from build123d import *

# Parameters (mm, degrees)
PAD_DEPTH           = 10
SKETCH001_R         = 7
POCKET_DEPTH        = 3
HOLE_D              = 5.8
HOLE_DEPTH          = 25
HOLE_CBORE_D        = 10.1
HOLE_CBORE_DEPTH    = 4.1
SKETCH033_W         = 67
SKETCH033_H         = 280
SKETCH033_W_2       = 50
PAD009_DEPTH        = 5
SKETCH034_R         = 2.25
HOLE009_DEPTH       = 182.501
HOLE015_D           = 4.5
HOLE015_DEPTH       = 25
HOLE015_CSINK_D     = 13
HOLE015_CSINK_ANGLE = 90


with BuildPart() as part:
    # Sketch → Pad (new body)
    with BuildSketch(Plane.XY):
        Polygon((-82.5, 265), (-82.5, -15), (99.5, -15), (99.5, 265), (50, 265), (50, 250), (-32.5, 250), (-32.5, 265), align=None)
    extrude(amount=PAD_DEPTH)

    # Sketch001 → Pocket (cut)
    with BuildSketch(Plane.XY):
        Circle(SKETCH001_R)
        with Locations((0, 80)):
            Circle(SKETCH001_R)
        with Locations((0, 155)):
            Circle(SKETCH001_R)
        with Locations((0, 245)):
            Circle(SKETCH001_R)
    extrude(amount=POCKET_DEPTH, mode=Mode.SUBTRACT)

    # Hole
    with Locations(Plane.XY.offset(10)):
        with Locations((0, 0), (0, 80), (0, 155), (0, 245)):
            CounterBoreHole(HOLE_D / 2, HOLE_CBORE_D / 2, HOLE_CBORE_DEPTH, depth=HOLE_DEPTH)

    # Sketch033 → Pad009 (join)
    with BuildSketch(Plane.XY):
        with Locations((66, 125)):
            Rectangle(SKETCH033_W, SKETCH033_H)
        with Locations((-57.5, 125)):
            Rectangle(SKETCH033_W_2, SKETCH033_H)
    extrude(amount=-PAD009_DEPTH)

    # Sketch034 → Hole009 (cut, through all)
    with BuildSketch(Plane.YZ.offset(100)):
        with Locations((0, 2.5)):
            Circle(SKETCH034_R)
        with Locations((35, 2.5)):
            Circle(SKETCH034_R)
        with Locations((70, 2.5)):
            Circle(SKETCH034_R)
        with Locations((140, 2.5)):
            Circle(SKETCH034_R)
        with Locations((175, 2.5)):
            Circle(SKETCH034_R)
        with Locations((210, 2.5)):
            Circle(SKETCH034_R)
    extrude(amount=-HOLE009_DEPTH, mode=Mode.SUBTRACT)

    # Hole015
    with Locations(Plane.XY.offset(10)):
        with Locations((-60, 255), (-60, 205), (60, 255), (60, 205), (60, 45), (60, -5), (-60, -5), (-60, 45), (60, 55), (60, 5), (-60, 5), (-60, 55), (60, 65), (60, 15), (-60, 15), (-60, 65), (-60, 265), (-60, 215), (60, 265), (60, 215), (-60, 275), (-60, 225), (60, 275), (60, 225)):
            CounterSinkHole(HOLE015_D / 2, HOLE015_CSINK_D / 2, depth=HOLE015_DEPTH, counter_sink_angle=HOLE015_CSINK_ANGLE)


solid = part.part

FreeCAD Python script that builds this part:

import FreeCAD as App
import Part
import Sketcher

V = App.Vector
Q = App.Units.Quantity


def add_polygon(sketch, points):
    """Adds a closed chain of lines whose ends are joined by coincident constraints."""
    first, n = sketch.GeometryCount, len(points)
    for a, b in zip(points, points[1:] + points[:1]):
        sketch.addGeometry(Part.LineSegment(App.Vector(*a, 0), App.Vector(*b, 0)), False)
    for i in range(n):
        sketch.addConstraint(Sketcher.Constraint("Coincident", first + i, 2, first + (i + 1) % n, 1))

doc = App.newDocument("Part")
body = doc.addObject("PartDesign::Body", "Body")

# Sketch on XY plane
sketch1 = body.newObject("Sketcher::SketchObject", "Sketch")
sketch1.AttachmentSupport = (doc.getObject("XY_Plane"), [""])
sketch1.MapMode = "FlatFace"
add_polygon(sketch1, [(-82.5, 265), (-82.5, -15), (99.5, -15), (99.5, 265), (50, 265), (50, 250), (-32.5, 250), (-32.5, 265)])  # lines 0-7
sketch1.addConstraint([
    Sketcher.Constraint("Vertical", 0),
    Sketcher.Constraint("Horizontal", 1),
    Sketcher.Constraint("Vertical", 2),
    Sketcher.Constraint("Horizontal", 3),
    Sketcher.Constraint("Vertical", 4),
    Sketcher.Constraint("Horizontal", 5),
    Sketcher.Constraint("Vertical", 6),
    Sketcher.Constraint("Horizontal", 7),
    Sketcher.Constraint("Horizontal", 3, 2, 6, 2),
    Sketcher.Constraint("DistanceX", 1, 1, 1, 2, Q("182 mm")),
    Sketcher.Constraint("DistanceX", 7, 2, 7, 1, Q("50 mm")),
    Sketcher.Constraint("DistanceY", 0, 2, 0, 1, Q("280 mm")),
    Sketcher.Constraint("DistanceY", 4, 2, 4, 1, Q("15 mm")),
    Sketcher.Constraint("DistanceX", 3, 2, 3, 1, Q("49.5 mm")),
    Sketcher.Constraint("DistanceY", 0, 2, -1, 1, Q("15 mm")),
    Sketcher.Constraint("DistanceX", -1, 1, 3, 2, Q("50 mm")),
])
pad1 = body.newObject("PartDesign::Pad", "Pad")
pad1.Profile = sketch1
pad1.Length = 10

# Sketch on XY plane
sketch2 = body.newObject("Sketcher::SketchObject", "Sketch001")
sketch2.AttachmentSupport = (doc.getObject("XY_Plane"), [""])
sketch2.MapMode = "FlatFace"
sketch2.addGeometry([
    Part.Circle(V(0, 0, 0), V(0, 0, 1), 7),
    Part.Circle(V(0, 80, 0), V(0, 0, 1), 7),
    Part.Circle(V(0, 155, 0), V(0, 0, 1), 7),
    Part.Circle(V(0, 245, 0), V(0, 0, 1), 7),
], False)
sketch2.addConstraint([
    Sketcher.Constraint("Coincident", 0, 3, -1, 1),
    Sketcher.Constraint("Equal", 0, 1),
    Sketcher.Constraint("Equal", 1, 2),
    Sketcher.Constraint("Equal", 2, 3),
    Sketcher.Constraint("PointOnObject", 1, 3, -2),
    Sketcher.Constraint("PointOnObject", 2, 3, -2),
    Sketcher.Constraint("PointOnObject", 3, 3, -2),
    Sketcher.Constraint("Diameter", 0, Q("14 mm")),
    Sketcher.Constraint("DistanceY", -1, 1, 1, 3, Q("80 mm")),
    Sketcher.Constraint("DistanceY", -1, 1, 2, 3, Q("155 mm")),
    Sketcher.Constraint("DistanceY", -1, 1, 3, 3, Q("245 mm")),
])
pocket1 = body.newObject("PartDesign::Pocket", "Pocket")
pocket1.Profile = sketch2
pocket1.Length = 3
pocket1.Reversed = True

# Sketch on XY plane
sketch3 = body.newObject("Sketcher::SketchObject", "Sketch002")
sketch3.AttachmentSupport = (doc.getObject("XY_Plane"), [""])
sketch3.MapMode = "FlatFace"
sketch3.AttachmentOffset = App.Placement(V(0, 0, 10), App.Rotation())
sketch3.addGeometry([
    Part.Circle(V(0, 0, 0), V(0, 0, 1), 2.9),
    Part.Circle(V(0, 80, 0), V(0, 0, 1), 2.9),
    Part.Circle(V(0, 155, 0), V(0, 0, 1), 2.9),
    Part.Circle(V(0, 245, 0), V(0, 0, 1), 2.9),
], False)
sketch3.addConstraint([
    Sketcher.Constraint("Coincident", 0, 3, -1, 1),
    Sketcher.Constraint("Equal", 0, 1),
    Sketcher.Constraint("Equal", 1, 2),
    Sketcher.Constraint("Equal", 2, 3),
    Sketcher.Constraint("PointOnObject", 1, 3, -2),
    Sketcher.Constraint("PointOnObject", 2, 3, -2),
    Sketcher.Constraint("PointOnObject", 3, 3, -2),
    Sketcher.Constraint("Diameter", 0, Q("5.8 mm")),
    Sketcher.Constraint("DistanceY", -1, 1, 1, 3, Q("80 mm")),
    Sketcher.Constraint("DistanceY", -1, 1, 2, 3, Q("155 mm")),
    Sketcher.Constraint("DistanceY", -1, 1, 3, 3, Q("245 mm")),
])
doc.recompute()
hole = body.newObject("PartDesign::Hole", "Hole")
hole.Profile = sketch3
hole.ThreadType = "None"
hole.Diameter = 5.8
hole.DepthType = "Dimension"
hole.Depth = 25
hole.DrillPoint = "Flat"
hole.HoleCutType = "Counterbore"
hole.HoleCutDiameter = 10.1
hole.HoleCutDepth = 4.1

# Sketch on XY plane
sketch4 = body.newObject("Sketcher::SketchObject", "Sketch003")
sketch4.AttachmentSupport = (doc.getObject("XY_Plane"), [""])
sketch4.MapMode = "FlatFace"
add_polygon(sketch4, [(32.5, 265), (32.5, -15), (99.5, -15), (99.5, 265)])  # lines 0-3
add_polygon(sketch4, [(-82.5, 265), (-82.5, -15), (-32.5, -15), (-32.5, 265)])  # lines 4-7
sketch4.addConstraint([
    Sketcher.Constraint("Vertical", 0),
    Sketcher.Constraint("Horizontal", 1),
    Sketcher.Constraint("Vertical", 2),
    Sketcher.Constraint("Horizontal", 3),
    Sketcher.Constraint("Vertical", 4),
    Sketcher.Constraint("Horizontal", 5),
    Sketcher.Constraint("Vertical", 6),
    Sketcher.Constraint("Horizontal", 7),
    Sketcher.Constraint("Symmetric", 0, 2, 5, 2, -2),
    Sketcher.Constraint("Horizontal", 3, 2, 6, 2),
    Sketcher.Constraint("DistanceX", 1, 1, 1, 2, Q("67 mm")),
    Sketcher.Constraint("DistanceX", 5, 1, 5, 2, Q("50 mm")),
    Sketcher.Constraint("DistanceY", 0, 2, 0, 1, Q("280 mm")),
    Sketcher.Constraint("DistanceY", 0, 2, -1, 1, Q("15 mm")),
    Sketcher.Constraint("DistanceX", 4, 2, 0, 2, Q("115 mm")),
])
pad2 = body.newObject("PartDesign::Pad", "Pad001")
pad2.Profile = sketch4
pad2.Length = 5
pad2.Reversed = True

# Sketch on YZ plane
sketch5 = body.newObject("Sketcher::SketchObject", "Sketch004")
sketch5.AttachmentSupport = (doc.getObject("YZ_Plane"), [""])
sketch5.MapMode = "FlatFace"
sketch5.AttachmentOffset = App.Placement(V(0, 0, 100), App.Rotation())
sketch5.addGeometry([
    Part.Circle(V(0, 2.5, 0), V(0, 0, 1), 2.25),  # 0
    Part.Circle(V(35, 2.5, 0), V(0, 0, 1), 2.25),  # 1
    Part.Circle(V(70, 2.5, 0), V(0, 0, 1), 2.25),  # 2
    Part.Circle(V(140, 2.5, 0), V(0, 0, 1), 2.25),  # 3
    Part.Circle(V(175, 2.5, 0), V(0, 0, 1), 2.25),  # 4
    Part.Circle(V(210, 2.5, 0), V(0, 0, 1), 2.25),  # 5
], False)
sketch5.addConstraint([
    Sketcher.Constraint("Equal", 0, 1),
    Sketcher.Constraint("Equal", 1, 2),
    Sketcher.Constraint("Equal", 2, 3),
    Sketcher.Constraint("Equal", 3, 4),
    Sketcher.Constraint("Equal", 4, 5),
    Sketcher.Constraint("PointOnObject", 0, 3, -2),
    Sketcher.Constraint("Horizontal", 0, 3, 1, 3),
    Sketcher.Constraint("Horizontal", 1, 3, 2, 3),
    Sketcher.Constraint("Horizontal", 2, 3, 3, 3),
    Sketcher.Constraint("Horizontal", 3, 3, 4, 3),
    Sketcher.Constraint("Horizontal", 4, 3, 5, 3),
    Sketcher.Constraint("Diameter", 0, Q("4.5 mm")),
    Sketcher.Constraint("DistanceX", -1, 1, 1, 3, Q("35 mm")),
    Sketcher.Constraint("DistanceX", -1, 1, 2, 3, Q("70 mm")),
    Sketcher.Constraint("DistanceX", -1, 1, 3, 3, Q("140 mm")),
    Sketcher.Constraint("DistanceX", -1, 1, 4, 3, Q("175 mm")),
    Sketcher.Constraint("DistanceX", -1, 1, 5, 3, Q("210 mm")),
    Sketcher.Constraint("DistanceY", -1, 1, 0, 3, Q("2.5 mm")),
])
pocket2 = body.newObject("PartDesign::Pocket", "Pocket001")
pocket2.Profile = sketch5
pocket2.Type = "ThroughAll"

# Sketch on XY plane
sketch6 = body.newObject("Sketcher::SketchObject", "Sketch005")
sketch6.AttachmentSupport = (doc.getObject("XY_Plane"), [""])
sketch6.MapMode = "FlatFace"
sketch6.AttachmentOffset = App.Placement(V(0, 0, 10), App.Rotation())
sketch6.addGeometry([
    Part.Circle(V(-60, 255, 0), V(0, 0, 1), 2.25),  # 0
    Part.Circle(V(-60, 205, 0), V(0, 0, 1), 2.25),  # 1
    Part.Circle(V(60, 255, 0), V(0, 0, 1), 2.25),  # 2
    Part.Circle(V(60, 205, 0), V(0, 0, 1), 2.25),  # 3
    Part.Circle(V(60, 45, 0), V(0, 0, 1), 2.25),  # 4
    Part.Circle(V(60, -5, 0), V(0, 0, 1), 2.25),  # 5
    Part.Circle(V(-60, -5, 0), V(0, 0, 1), 2.25),  # 6
    Part.Circle(V(-60, 45, 0), V(0, 0, 1), 2.25),  # 7
    Part.Circle(V(60, 55, 0), V(0, 0, 1), 2.25),  # 8
    Part.Circle(V(60, 5, 0), V(0, 0, 1), 2.25),  # 9
    Part.Circle(V(-60, 5, 0), V(0, 0, 1), 2.25),  # 10
    Part.Circle(V(-60, 55, 0), V(0, 0, 1), 2.25),  # 11
    Part.Circle(V(60, 65, 0), V(0, 0, 1), 2.25),  # 12
    Part.Circle(V(60, 15, 0), V(0, 0, 1), 2.25),  # 13
    Part.Circle(V(-60, 15, 0), V(0, 0, 1), 2.25),  # 14
    Part.Circle(V(-60, 65, 0), V(0, 0, 1), 2.25),  # 15
    Part.Circle(V(-60, 265, 0), V(0, 0, 1), 2.25),  # 16
    Part.Circle(V(-60, 215, 0), V(0, 0, 1), 2.25),  # 17
    Part.Circle(V(60, 265, 0), V(0, 0, 1), 2.25),  # 18
    Part.Circle(V(60, 215, 0), V(0, 0, 1), 2.25),  # 19
    Part.Circle(V(-60, 275, 0), V(0, 0, 1), 2.25),  # 20
    Part.Circle(V(-60, 225, 0), V(0, 0, 1), 2.25),  # 21
    Part.Circle(V(60, 275, 0), V(0, 0, 1), 2.25),  # 22
    Part.Circle(V(60, 225, 0), V(0, 0, 1), 2.25),  # 23
], False)
sketch6.addConstraint([
    Sketcher.Constraint("Equal", 0, 1),
    Sketcher.Constraint("Equal", 1, 2),
    Sketcher.Constraint("Equal", 2, 3),
    Sketcher.Constraint("Equal", 3, 4),
    Sketcher.Constraint("Equal", 4, 5),
    Sketcher.Constraint("Equal", 5, 6),
    Sketcher.Constraint("Equal", 6, 7),
    Sketcher.Constraint("Equal", 7, 8),
    Sketcher.Constraint("Equal", 8, 9),
    Sketcher.Constraint("Equal", 9, 10),
    Sketcher.Constraint("Equal", 10, 11),
    Sketcher.Constraint("Equal", 11, 12),
    Sketcher.Constraint("Equal", 12, 13),
    Sketcher.Constraint("Equal", 13, 14),
    Sketcher.Constraint("Equal", 14, 15),
    Sketcher.Constraint("Equal", 15, 16),
    Sketcher.Constraint("Equal", 16, 17),
    Sketcher.Constraint("Equal", 17, 18),
    Sketcher.Constraint("Equal", 18, 19),
    Sketcher.Constraint("Equal", 19, 20),
    Sketcher.Constraint("Equal", 20, 21),
    Sketcher.Constraint("Equal", 21, 22),
    Sketcher.Constraint("Equal", 22, 23),
    Sketcher.Constraint("Symmetric", 6, 3, 9, 3, -1, 1),
    Sketcher.Constraint("Symmetric", 5, 3, 10, 3, -1, 1),
    Sketcher.Constraint("Symmetric", 0, 3, 2, 3, -2),
    Sketcher.Constraint("Symmetric", 1, 3, 3, 3, -2),
    Sketcher.Constraint("Symmetric", 5, 3, 6, 3, -2),
    Sketcher.Constraint("Symmetric", 4, 3, 7, 3, -2),
    Sketcher.Constraint("Symmetric", 8, 3, 11, 3, -2),
    Sketcher.Constraint("Symmetric", 13, 3, 14, 3, -2),
    Sketcher.Constraint("Symmetric", 12, 3, 15, 3, -2),
    Sketcher.Constraint("Symmetric", 16, 3, 18, 3, -2),
    Sketcher.Constraint("Symmetric", 17, 3, 19, 3, -2),
    Sketcher.Constraint("Symmetric", 20, 3, 22, 3, -2),
    Sketcher.Constraint("Symmetric", 21, 3, 23, 3, -2),
    Sketcher.Constraint("Vertical", 0, 3, 1, 3),
    Sketcher.Constraint("Vertical", 3, 3, 4, 3),
    Sketcher.Constraint("Vertical", 4, 3, 5, 3),
    Sketcher.Constraint("Vertical", 5, 3, 8, 3),
    Sketcher.Constraint("Vertical", 9, 3, 12, 3),
    Sketcher.Constraint("Vertical", 12, 3, 13, 3),
    Sketcher.Constraint("Vertical", 15, 3, 16, 3),
    Sketcher.Constraint("Vertical", 16, 3, 17, 3),
    Sketcher.Constraint("Vertical", 17, 3, 20, 3),
    Sketcher.Constraint("Vertical", 20, 3, 21, 3),
    Sketcher.Constraint("Diameter", 0, Q("4.5 mm")),
    Sketcher.Constraint("DistanceX", 0, 3, -1, 1, Q("60 mm")),
    Sketcher.Constraint("DistanceY", -1, 1, 0, 3, Q("255 mm")),
    Sketcher.Constraint("DistanceY", -1, 1, 1, 3, Q("205 mm")),
    Sketcher.Constraint("DistanceY", -1, 1, 4, 3, Q("45 mm")),
    Sketcher.Constraint("DistanceY", 5, 3, -1, 1, Q("5 mm")),
    Sketcher.Constraint("DistanceY", -1, 1, 8, 3, Q("55 mm")),
    Sketcher.Constraint("DistanceY", -1, 1, 12, 3, Q("65 mm")),
    Sketcher.Constraint("DistanceY", -1, 1, 13, 3, Q("15 mm")),
    Sketcher.Constraint("DistanceY", -1, 1, 16, 3, Q("265 mm")),
    Sketcher.Constraint("DistanceY", -1, 1, 17, 3, Q("215 mm")),
    Sketcher.Constraint("DistanceY", -1, 1, 20, 3, Q("275 mm")),
    Sketcher.Constraint("DistanceY", -1, 1, 21, 3, Q("225 mm")),
])
doc.recompute()
hole2 = body.newObject("PartDesign::Hole", "Hole001")
hole2.Profile = sketch6
hole2.ThreadType = "None"
hole2.Diameter = 4.5
hole2.DepthType = "Dimension"
hole2.Depth = 25
hole2.DrillPoint = "Flat"
hole2.HoleCutType = "Countersink"
hole2.HoleCutDiameter = 13
hole2.HoleCutCountersinkAngle = 90

doc.recompute()
